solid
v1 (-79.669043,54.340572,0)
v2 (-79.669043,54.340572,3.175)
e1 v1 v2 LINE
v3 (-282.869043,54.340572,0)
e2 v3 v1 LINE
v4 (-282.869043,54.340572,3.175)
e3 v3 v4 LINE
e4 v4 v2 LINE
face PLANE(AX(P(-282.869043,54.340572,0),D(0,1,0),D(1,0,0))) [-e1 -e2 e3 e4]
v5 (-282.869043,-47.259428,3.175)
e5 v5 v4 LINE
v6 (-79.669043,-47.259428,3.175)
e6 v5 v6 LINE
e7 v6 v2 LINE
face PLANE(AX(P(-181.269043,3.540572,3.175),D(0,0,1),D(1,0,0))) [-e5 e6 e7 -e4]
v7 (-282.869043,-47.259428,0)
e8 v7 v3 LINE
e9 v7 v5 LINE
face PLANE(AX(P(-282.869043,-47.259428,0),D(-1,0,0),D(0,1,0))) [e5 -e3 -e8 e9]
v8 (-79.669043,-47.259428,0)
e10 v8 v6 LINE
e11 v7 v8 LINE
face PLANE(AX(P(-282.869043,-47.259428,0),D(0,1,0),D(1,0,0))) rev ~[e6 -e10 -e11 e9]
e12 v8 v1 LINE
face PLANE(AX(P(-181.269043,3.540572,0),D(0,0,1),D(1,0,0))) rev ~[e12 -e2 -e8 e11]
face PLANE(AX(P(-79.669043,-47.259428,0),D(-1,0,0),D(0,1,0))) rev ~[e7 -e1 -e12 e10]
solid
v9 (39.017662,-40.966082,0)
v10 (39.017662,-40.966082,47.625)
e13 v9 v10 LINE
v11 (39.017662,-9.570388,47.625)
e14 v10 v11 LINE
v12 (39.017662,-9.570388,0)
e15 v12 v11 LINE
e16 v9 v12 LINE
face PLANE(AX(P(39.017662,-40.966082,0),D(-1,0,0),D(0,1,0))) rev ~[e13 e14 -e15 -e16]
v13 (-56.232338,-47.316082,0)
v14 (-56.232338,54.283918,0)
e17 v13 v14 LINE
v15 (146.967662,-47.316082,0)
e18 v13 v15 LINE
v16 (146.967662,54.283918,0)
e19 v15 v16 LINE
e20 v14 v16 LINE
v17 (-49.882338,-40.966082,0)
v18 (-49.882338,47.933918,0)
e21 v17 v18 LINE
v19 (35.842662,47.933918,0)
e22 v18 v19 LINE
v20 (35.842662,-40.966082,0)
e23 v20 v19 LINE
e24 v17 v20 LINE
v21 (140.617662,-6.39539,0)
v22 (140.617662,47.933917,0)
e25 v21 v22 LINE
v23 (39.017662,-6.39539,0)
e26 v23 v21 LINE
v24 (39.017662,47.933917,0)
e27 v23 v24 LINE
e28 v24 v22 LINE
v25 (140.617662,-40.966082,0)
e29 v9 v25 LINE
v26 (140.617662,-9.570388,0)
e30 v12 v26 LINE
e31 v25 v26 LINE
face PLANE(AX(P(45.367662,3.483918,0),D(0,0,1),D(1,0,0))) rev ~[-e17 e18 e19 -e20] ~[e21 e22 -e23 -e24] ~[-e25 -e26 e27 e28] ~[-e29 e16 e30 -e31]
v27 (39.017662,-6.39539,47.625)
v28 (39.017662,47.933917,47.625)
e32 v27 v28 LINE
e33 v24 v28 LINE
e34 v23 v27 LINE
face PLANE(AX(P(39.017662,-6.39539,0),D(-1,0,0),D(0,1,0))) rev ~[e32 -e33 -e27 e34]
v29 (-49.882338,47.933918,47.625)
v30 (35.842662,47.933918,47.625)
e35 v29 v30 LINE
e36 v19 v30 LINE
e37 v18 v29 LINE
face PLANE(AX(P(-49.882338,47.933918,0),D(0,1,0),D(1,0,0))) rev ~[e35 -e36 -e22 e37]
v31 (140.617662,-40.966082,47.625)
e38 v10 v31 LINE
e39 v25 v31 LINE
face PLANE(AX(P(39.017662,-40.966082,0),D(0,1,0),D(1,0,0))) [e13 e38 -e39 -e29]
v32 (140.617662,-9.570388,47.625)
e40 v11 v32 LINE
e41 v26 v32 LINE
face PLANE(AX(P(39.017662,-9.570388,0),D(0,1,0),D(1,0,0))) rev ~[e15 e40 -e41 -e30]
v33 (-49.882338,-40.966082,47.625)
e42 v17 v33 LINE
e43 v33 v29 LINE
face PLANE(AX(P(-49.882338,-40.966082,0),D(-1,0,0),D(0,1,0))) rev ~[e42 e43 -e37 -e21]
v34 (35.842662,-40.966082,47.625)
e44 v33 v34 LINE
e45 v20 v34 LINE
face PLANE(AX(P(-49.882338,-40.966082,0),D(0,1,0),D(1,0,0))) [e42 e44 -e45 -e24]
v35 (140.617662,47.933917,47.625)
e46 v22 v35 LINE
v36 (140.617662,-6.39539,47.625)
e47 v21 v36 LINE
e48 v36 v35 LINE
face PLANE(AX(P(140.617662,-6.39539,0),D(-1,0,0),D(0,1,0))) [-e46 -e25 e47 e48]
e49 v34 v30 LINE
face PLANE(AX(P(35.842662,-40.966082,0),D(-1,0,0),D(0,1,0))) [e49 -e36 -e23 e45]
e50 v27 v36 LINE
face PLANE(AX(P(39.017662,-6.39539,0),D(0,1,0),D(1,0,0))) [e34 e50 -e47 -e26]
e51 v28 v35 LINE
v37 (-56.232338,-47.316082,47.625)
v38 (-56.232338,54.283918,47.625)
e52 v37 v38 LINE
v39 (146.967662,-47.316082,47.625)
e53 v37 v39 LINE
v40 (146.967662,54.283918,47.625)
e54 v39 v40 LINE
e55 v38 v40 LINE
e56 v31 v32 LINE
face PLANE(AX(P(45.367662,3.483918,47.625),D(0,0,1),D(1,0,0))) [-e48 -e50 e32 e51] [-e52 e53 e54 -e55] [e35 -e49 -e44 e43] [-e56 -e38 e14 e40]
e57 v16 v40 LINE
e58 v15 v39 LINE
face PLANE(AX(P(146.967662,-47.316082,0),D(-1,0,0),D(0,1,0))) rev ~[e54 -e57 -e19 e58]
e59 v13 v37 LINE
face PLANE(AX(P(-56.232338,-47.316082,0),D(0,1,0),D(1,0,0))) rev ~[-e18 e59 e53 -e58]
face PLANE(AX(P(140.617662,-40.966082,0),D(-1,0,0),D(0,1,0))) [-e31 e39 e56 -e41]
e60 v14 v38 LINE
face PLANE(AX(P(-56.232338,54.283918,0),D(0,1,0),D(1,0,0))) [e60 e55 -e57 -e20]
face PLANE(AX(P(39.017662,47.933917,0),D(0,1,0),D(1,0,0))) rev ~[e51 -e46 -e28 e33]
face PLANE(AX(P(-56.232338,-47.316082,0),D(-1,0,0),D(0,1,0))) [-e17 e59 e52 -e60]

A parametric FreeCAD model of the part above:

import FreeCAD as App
import Part
import Sketcher

V = App.Vector
Q = App.Units.Quantity

doc = App.newDocument("Part")
body = doc.addObject("PartDesign::Body", "Body")

sketch1 = body.newObject("Sketcher::SketchObject", "Sketch")
sketch1.AttachmentSupport = (doc.getObject("XY_Plane"), [""])
sketch1.MapMode = "FlatFace"
sketch1.addGeometry(Part.LineSegment(V(-282.869043, 54.340572, 0), V(-282.869043, -47.259428, 0)), False)
sketch1.addGeometry(Part.LineSegment(V(-282.869043, -47.259428, 0), V(-79.669043, -47.259428, 0)), False)
sketch1.addGeometry(Part.LineSegment(V(-79.669043, -47.259428, 0), V(-79.669043, 54.340572, 0)), False)
sketch1.addGeometry(Part.LineSegment(V(-79.669043, 54.340572, 0), V(-282.869043, 54.340572, 0)), False)
sketch1.addConstraint(Sketcher.Constraint("Coincident", 0, 2, 1, 1))
sketch1.addConstraint(Sketcher.Constraint("Coincident", 1, 2, 2, 1))
sketch1.addConstraint(Sketcher.Constraint("Coincident", 2, 2, 3, 1))
sketch1.addConstraint(Sketcher.Constraint("Coincident", 3, 2, 0, 1))
sketch1.addConstraint(Sketcher.Constraint("Vertical", 0))
sketch1.addConstraint(Sketcher.Constraint("Horizontal", 1))
sketch1.addConstraint(Sketcher.Constraint("Vertical", 2))
sketch1.addConstraint(Sketcher.Constraint("Horizontal", 3))
sketch1.addConstraint(Sketcher.Constraint("DistanceX", 1, 1, 1, 2, Q("8 in")))
sketch1.addConstraint(Sketcher.Constraint("DistanceY", 0, 2, 0, 1, Q("4 in")))
sketch1.addConstraint(Sketcher.Constraint("DistanceX", 0, 2, -1, 1, 282.869043))
sketch1.addConstraint(Sketcher.Constraint("DistanceY", 0, 2, -1, 1, 47.259428))
pad1 = body.newObject("PartDesign::Pad", "Pad")
pad1.Profile = sketch1
pad1.Length = Q("0.125 in")
body2 = doc.addObject("PartDesign::Body", "Body001")

sketch2 = body2.newObject("Sketcher::SketchObject", "Sketch001")
sketch2.AttachmentSupport = (doc.getObject("XY_Plane001"), [""])
sketch2.MapMode = "FlatFace"
sketch2.addGeometry(Part.LineSegment(V(-56.232338, 54.283918, 0), V(-56.232338, -47.316082, 0)), False)
sketch2.addGeometry(Part.LineSegment(V(-56.232338, -47.316082, 0), V(146.967662, -47.316082, 0)), False)
sketch2.addGeometry(Part.LineSegment(V(146.967662, -47.316082, 0), V(146.967662, 54.283918, 0)), False)
sketch2.addGeometry(Part.LineSegment(V(146.967662, 54.283918, 0), V(-56.232338, 54.283918, 0)), False)
sketch2.addGeometry(Part.LineSegment(V(140.617662, -40.966082, 0), V(39.017662, -40.966082, 0)), False)
sketch2.addGeometry(Part.LineSegment(V(39.017662, -40.966082, 0), V(39.017662, -9.570388, 0)), False)
sketch2.addGeometry(Part.LineSegment(V(39.017662, -9.570388, 0), V(140.617662, -9.570388, 0)), False)
sketch2.addGeometry(Part.LineSegment(V(140.617662, -9.570388, 0), V(140.617662, -40.966082, 0)), False)
sketch2.addGeometry(Part.LineSegment(V(35.842662, -40.966082, 0), V(-49.882338, -40.966082, 0)), False)
sketch2.addGeometry(Part.LineSegment(V(-49.882338, -40.966082, 0), V(-49.882338, 47.933918, 0)), False)
sketch2.addGeometry(Part.LineSegment(V(-49.882338, 47.933918, 0), V(35.842662, 47.933918, 0)), False)
sketch2.addGeometry(Part.LineSegment(V(35.842662, 47.933918, 0), V(35.842662, -40.966082, 0)), False)
sketch2.addGeometry(Part.LineSegment(V(140.617662, -6.39539, 0), V(39.017662, -6.39539, 0)), False)
sketch2.addGeometry(Part.LineSegment(V(39.017662, -6.39539, 0), V(39.017662, 47.933917, 0)), False)
sketch2.addGeometry(Part.LineSegment(V(39.017662, 47.933917, 0), V(140.617662, 47.933917, 0)), False)
sketch2.addGeometry(Part.LineSegment(V(140.617662, 47.933917, 0), V(140.617662, -6.39539, 0)), False)
sketch2.addConstraint(Sketcher.Constraint("Coincident", 0, 2, 1, 1))
sketch2.addConstraint(Sketcher.Constraint("Coincident", 1, 2, 2, 1))
sketch2.addConstraint(Sketcher.Constraint("Coincident", 2, 2, 3, 1))
sketch2.addConstraint(Sketcher.Constraint("Coincident", 3, 2, 0, 1))
sketch2.addConstraint(Sketcher.Constraint("Coincident", 4, 2, 5, 1))
sketch2.addConstraint(Sketcher.Constraint("Coincident", 5, 2, 6, 1))
sketch2.addConstraint(Sketcher.Constraint("Coincident", 6, 2, 7, 1))
sketch2.addConstraint(Sketcher.Constraint("Coincident", 7, 2, 4, 1))
sketch2.addConstraint(Sketcher.Constraint("Coincident", 8, 2, 9, 1))
sketch2.addConstraint(Sketcher.Constraint("Coincident", 9, 2, 10, 1))
sketch2.addConstraint(Sketcher.Constraint("Coincident", 10, 2, 11, 1))
sketch2.addConstraint(Sketcher.Constraint("Coincident", 11, 2, 8, 1))
sketch2.addConstraint(Sketcher.Constraint("Coincident", 12, 2, 13, 1))
sketch2.addConstraint(Sketcher.Constraint("Coincident", 13, 2, 14, 1))
sketch2.addConstraint(Sketcher.Constraint("Coincident", 14, 2, 15, 1))
sketch2.addConstraint(Sketcher.Constraint("Coincident", 15, 2, 12, 1))
sketch2.addConstraint(Sketcher.Constraint("Vertical", 0))
sketch2.addConstraint(Sketcher.Constraint("Horizontal", 1))
sketch2.addConstraint(Sketcher.Constraint("Vertical", 2))
sketch2.addConstraint(Sketcher.Constraint("Horizontal", 3))
sketch2.addConstraint(Sketcher.Constraint("Horizontal", 4))
sketch2.addConstraint(Sketcher.Constraint("Vertical", 5))
sketch2.addConstraint(Sketcher.Constraint("Horizontal", 6))
sketch2.addConstraint(Sketcher.Constraint("Vertical", 7))
sketch2.addConstraint(Sketcher.Constraint("Horizontal", 8))
sketch2.addConstraint(Sketcher.Constraint("Vertical", 9))
sketch2.addConstraint(Sketcher.Constraint("Horizontal", 10))
sketch2.addConstraint(Sketcher.Constraint("Vertical", 11))
sketch2.addConstraint(Sketcher.Constraint("Horizontal", 12))
sketch2.addConstraint(Sketcher.Constraint("Vertical", 13))
sketch2.addConstraint(Sketcher.Constraint("Horizontal", 14))
sketch2.addConstraint(Sketcher.Constraint("Vertical", 15))
sketch2.addConstraint(Sketcher.Constraint("Horizontal", 7, 2, 8, 2))
sketch2.addConstraint(Sketcher.Constraint("Horizontal", 10, 2, 13, 2))
sketch2.addConstraint(Sketcher.Constraint("Vertical", 5, 2, 12, 2))
sketch2.addConstraint(Sketcher.Constraint("Vertical", 7, 2, 14, 2))
sketch2.addConstraint(Sketcher.Constraint("Equal", 14, 0))
sketch2.addConstraint(Sketcher.Constraint("DistanceX", 1, 1, 1, 2, Q("8 in")))
sketch2.addConstraint(Sketcher.Constraint("DistanceX", 4, 2, 4, 1, Q("4 in")))
sketch2.addConstraint(Sketcher.Constraint("DistanceY", 9, 1, 9, 2, Q("3.5 in")))
sketch2.addConstraint(Sketcher.Constraint("DistanceX", 8, 2, 4, 2, Q("3.5 in")))
sketch2.addConstraint(Sketcher.Constraint("DistanceX", 8, 2, 8, 1, Q("3.375 in")))
sketch2.addConstraint(Sketcher.Constraint("DistanceX", 0, 2, 4, 2, Q("3.75 in")))
sketch2.addConstraint(Sketcher.Constraint("DistanceY", 0, 2, 4, 2, Q("0.25 in")))
sketch2.addConstraint(Sketcher.Constraint("DistanceY", 5, 2, 12, 2, Q("0.125 in")))
sketch2.addConstraint(Sketcher.Constraint("DistanceY", 5, 1, 5, 2, 31.395693))
sketch2.addConstraint(Sketcher.Constraint("DistanceX", -1, 1, 1, 2, 146.967662))
sketch2.addConstraint(Sketcher.Constraint("DistanceY", 4, 2, -1, 1, 40.966082))
pad2 = body2.newObject("PartDesign::Pad", "Pad001")
pad2.Profile = sketch2
pad2.Length = Q("1.875 in")

doc.recompute()
